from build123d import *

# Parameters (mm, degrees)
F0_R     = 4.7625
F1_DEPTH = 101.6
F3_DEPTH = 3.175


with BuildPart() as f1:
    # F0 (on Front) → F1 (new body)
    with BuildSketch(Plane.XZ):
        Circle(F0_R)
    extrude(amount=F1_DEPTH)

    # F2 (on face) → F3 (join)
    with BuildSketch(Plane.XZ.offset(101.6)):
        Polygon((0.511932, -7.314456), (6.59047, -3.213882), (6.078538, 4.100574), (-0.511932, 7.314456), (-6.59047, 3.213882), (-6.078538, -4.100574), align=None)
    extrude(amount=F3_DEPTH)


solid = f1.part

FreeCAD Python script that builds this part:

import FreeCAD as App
import Part
import Sketcher
Q = App.Units.Quantity

doc = App.newDocument("Part")
params = doc.addObject("Spreadsheet::Sheet", "Params")
for row, (alias, value) in enumerate([
    ("sketch1_diameter", "0.375 in"),
    ("pad1_length", "4 in"),
    ("pad2_length", "0.125 in"),
], start=1):
    params.set(f"A{row}", alias)
    params.set(f"B{row}", "=" + value)
    params.setAlias(f"B{row}", alias)

body = doc.addObject("PartDesign::Body", "Body")

# Sketch on XZ plane
sketch1 = doc.addObject("Sketcher::SketchObject", "Sketch")
body.addObject(sketch1)
sketch1.AttachmentSupport = (doc.XZ_Plane, [""])
sketch1.MapMode = "FlatFace"
sketch1.addGeometry(Part.Circle(App.Vector(0, 0, 0), App.Vector(0, 0, 1), 4.8), False)
sketch1.addConstraint([
    Sketcher.Constraint("Coincident", 0, 3, -1, 1),
    Sketcher.Constraint("Diameter", 0, Q("0.375 in")),
])
sketch1.setExpression("Constraints[1]", "Params.sketch1_diameter")
pad1 = doc.addObject("PartDesign::Pad", "Pad")
body.addObject(pad1)
pad1.Profile = sketch1
pad1.setExpression("Length", "Params.pad1_length")

# Sketch on XZ plane
sketch2 = doc.addObject("Sketcher::SketchObject", "Sketch001")
body.addObject(sketch2)
sketch2.AttachmentSupport = (doc.XZ_Plane, [""])
sketch2.MapMode = "FlatFace"
sketch2.AttachmentOffset = App.Placement(App.Vector(0, 0, 4 * 25.4), App.Rotation())
sketch2.addGeometry([
    Part.LineSegment(App.Vector(1, -7, 0), App.Vector(7, -3, 0)),  # 0
    Part.LineSegment(App.Vector(7, -3, 0), App.Vector(6, 4, 0)),  # 1
    Part.LineSegment(App.Vector(6, 4, 0), App.Vector(-1, 7, 0)),  # 2
    Part.LineSegment(App.Vector(-1, 7, 0), App.Vector(-7, 3, 0)),  # 3
    Part.LineSegment(App.Vector(-7, 3, 0), App.Vector(-6, -4, 0)),  # 4
    Part.LineSegment(App.Vector(-6, -4, 0), App.Vector(1, -7, 0)),  # 5
], False)
sketch2.addConstraint([
    Sketcher.Constraint("Coincident", 0, 2, 1, 1),
    Sketcher.Constraint("Coincident", 1, 2, 2, 1),
    Sketcher.Constraint("Coincident", 2, 2, 3, 1),
    Sketcher.Constraint("Coincident", 3, 2, 4, 1),
    Sketcher.Constraint("Coincident", 4, 2, 5, 1),
    Sketcher.Constraint("Coincident", 5, 2, 0, 1),
    Sketcher.Constraint("Symmetric", 0, 2, 3, 2, -1, 1),
    Sketcher.Constraint("Symmetric", 1, 2, 4, 2, -1, 1),
    Sketcher.Constraint("Symmetric", 2, 2, 5, 2, -1, 1),
    Sketcher.Constraint("Equal", 0, 1),
    Sketcher.Constraint("Equal", 1, 2),
    Sketcher.Constraint("DistanceX", 2, 2, 0, 2, 7.102402),
    Sketcher.Constraint("Distance", 0, 7.332348),
    Sketcher.Constraint("DistanceX", -1, 1, 0, 2, 6.59047),
    Sketcher.Constraint("DistanceY", 0, 2, -1, 1, 3.213882),
])
pad2 = doc.addObject("PartDesign::Pad", "Pad001")
body.addObject(pad2)
pad2.Profile = sketch2
pad2.setExpression("Length", "Params.pad2_length")

doc.recompute()
